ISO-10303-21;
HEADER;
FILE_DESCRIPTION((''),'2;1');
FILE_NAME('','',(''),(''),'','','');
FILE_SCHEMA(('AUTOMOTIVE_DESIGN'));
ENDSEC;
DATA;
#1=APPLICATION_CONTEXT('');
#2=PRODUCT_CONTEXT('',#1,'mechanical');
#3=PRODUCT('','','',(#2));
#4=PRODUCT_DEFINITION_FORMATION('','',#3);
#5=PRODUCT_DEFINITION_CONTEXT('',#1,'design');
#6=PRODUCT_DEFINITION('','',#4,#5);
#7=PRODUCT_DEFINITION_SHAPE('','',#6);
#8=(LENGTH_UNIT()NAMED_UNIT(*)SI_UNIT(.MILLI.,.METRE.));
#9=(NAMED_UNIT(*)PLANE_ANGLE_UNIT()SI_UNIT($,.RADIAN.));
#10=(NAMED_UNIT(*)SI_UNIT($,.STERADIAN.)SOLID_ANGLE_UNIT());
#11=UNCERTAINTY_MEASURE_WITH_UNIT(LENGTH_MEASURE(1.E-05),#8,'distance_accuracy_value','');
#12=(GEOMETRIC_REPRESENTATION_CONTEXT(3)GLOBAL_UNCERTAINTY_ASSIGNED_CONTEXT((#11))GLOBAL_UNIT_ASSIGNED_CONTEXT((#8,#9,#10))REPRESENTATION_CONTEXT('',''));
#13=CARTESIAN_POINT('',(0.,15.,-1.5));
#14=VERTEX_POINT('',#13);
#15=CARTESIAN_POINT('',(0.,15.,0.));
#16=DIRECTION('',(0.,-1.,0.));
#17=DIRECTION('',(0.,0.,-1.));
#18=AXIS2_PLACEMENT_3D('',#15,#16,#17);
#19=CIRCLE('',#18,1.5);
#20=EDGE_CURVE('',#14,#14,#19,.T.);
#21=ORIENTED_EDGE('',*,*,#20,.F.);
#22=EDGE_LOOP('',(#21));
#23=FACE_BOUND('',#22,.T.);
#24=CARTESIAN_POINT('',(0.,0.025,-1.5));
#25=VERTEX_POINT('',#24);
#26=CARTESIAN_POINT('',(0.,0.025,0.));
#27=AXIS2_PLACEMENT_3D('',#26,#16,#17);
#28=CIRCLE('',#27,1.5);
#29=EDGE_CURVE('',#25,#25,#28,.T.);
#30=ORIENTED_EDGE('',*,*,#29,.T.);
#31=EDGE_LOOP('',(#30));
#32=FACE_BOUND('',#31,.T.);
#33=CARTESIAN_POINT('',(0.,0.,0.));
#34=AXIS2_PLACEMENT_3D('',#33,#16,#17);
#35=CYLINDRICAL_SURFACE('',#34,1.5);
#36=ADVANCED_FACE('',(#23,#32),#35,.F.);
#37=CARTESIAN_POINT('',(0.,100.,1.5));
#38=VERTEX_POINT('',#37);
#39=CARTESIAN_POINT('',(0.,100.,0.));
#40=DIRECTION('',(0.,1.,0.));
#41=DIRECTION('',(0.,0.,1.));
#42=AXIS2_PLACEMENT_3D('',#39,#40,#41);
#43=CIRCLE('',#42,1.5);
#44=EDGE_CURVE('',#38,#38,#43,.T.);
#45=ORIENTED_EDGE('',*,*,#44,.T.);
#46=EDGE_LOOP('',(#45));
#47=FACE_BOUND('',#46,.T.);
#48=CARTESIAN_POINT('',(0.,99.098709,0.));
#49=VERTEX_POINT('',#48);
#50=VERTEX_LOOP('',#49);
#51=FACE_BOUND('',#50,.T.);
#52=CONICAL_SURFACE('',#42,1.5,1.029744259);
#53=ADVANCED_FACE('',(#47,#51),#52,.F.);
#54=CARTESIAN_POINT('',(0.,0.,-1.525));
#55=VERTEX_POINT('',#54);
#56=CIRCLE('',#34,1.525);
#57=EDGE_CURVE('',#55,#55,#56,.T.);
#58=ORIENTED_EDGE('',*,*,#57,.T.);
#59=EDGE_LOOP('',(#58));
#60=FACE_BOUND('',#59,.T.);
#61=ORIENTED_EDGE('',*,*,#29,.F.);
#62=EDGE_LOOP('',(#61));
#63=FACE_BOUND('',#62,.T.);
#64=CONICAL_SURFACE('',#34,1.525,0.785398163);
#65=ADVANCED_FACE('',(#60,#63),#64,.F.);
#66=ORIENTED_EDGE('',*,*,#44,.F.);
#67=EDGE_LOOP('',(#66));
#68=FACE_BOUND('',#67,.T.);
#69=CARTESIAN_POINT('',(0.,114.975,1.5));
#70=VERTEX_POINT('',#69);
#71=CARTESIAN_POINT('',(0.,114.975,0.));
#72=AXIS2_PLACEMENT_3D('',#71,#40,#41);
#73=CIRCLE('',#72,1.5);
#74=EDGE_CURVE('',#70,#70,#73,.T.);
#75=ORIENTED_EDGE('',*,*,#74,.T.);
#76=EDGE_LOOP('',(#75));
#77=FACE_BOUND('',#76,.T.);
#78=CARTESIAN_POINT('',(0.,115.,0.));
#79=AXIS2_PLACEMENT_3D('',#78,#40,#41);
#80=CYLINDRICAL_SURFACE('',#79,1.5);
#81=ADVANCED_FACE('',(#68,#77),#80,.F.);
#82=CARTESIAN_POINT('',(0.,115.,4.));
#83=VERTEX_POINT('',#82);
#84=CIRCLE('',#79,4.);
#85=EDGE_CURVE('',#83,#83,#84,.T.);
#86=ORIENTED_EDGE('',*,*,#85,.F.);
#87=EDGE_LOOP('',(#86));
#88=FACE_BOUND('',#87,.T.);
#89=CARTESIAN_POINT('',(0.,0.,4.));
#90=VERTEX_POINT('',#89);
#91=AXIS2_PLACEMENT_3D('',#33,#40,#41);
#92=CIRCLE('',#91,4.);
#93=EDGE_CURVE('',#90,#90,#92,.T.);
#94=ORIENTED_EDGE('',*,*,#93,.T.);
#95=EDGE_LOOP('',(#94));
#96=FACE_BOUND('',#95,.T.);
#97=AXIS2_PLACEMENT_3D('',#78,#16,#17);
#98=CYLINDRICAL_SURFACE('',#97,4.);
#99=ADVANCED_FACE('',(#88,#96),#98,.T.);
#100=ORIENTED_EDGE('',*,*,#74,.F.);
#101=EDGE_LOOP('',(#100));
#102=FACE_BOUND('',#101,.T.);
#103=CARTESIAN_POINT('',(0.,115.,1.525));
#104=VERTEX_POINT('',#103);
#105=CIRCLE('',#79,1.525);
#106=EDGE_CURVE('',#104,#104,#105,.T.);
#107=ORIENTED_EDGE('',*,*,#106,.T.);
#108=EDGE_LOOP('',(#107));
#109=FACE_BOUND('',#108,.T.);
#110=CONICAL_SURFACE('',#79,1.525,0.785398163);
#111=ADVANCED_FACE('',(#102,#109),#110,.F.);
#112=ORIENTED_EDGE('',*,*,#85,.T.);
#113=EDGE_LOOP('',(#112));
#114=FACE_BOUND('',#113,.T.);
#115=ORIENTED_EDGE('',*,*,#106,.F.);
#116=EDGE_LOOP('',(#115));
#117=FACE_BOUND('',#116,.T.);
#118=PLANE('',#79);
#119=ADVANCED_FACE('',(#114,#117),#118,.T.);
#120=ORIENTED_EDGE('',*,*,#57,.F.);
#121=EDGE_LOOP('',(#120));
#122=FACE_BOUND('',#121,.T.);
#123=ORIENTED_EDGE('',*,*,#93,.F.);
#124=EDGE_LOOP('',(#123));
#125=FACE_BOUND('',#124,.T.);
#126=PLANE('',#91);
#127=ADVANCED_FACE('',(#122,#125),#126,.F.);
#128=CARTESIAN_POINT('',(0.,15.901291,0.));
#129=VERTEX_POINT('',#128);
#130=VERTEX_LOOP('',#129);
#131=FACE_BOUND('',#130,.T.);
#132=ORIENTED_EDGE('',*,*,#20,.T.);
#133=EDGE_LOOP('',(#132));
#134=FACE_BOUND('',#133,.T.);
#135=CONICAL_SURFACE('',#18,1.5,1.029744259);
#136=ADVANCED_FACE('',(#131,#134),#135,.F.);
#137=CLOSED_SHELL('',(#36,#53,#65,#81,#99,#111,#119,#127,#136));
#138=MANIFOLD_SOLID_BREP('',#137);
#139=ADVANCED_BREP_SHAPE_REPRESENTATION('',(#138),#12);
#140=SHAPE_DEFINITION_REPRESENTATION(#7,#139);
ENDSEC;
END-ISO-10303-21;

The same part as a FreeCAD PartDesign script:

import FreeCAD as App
import Part
import Sketcher
Q = App.Units.Quantity


def add_polygon(sketch, points):
    """Adds a closed chain of lines whose ends are joined by coincident constraints."""
    first, n = sketch.GeometryCount, len(points)
    for a, b in zip(points, points[1:] + points[:1]):
        sketch.addGeometry(Part.LineSegment(App.Vector(*a, 0), App.Vector(*b, 0)), False)
    for i in range(n):
        sketch.addConstraint(Sketcher.Constraint("Coincident", first + i, 2, first + (i + 1) % n, 1))

doc = App.newDocument("Part")
body = doc.addObject("PartDesign::Body", "Body")

# Sketch on XZ plane
sketch1 = body.newObject("Sketcher::SketchObject", "Sketch")
sketch1.AttachmentSupport = (doc.getObject("XZ_Plane"), [""])
sketch1.MapMode = "FlatFace"
sketch1.addGeometry(Part.Circle(App.Vector(0, 0, 0), App.Vector(0, 0, 1), 4), False)
sketch1.addConstraint([
    Sketcher.Constraint("Coincident", 0, 3, -1, 1),
    Sketcher.Constraint("Diameter", 0, 8.0),
])
pad1 = body.newObject("PartDesign::Pad", "Pad")
pad1.Profile = sketch1
pad1.Length = 115
pad1.Reversed = True

# Sketch on YZ plane
sketch2 = body.newObject("Sketcher::SketchObject", "Sketch001")
sketch2.AttachmentSupport = (doc.getObject("YZ_Plane"), [""])
sketch2.MapMode = "FlatFace"
add_polygon(sketch2, [(99.099, 0), (115, 0), (115, 1.525), (114.975, 1.5), (100, 1.5)])  # lines 0-4
sketch2.addConstraint([
    Sketcher.Constraint("Horizontal", 0),
    Sketcher.Constraint("Vertical", 1),
    Sketcher.Constraint("Horizontal", 3),
    Sketcher.Constraint("PointOnObject", 0, 2, -1),
    Sketcher.Constraint("Angle", 2, Q("-135 deg")),
    Sketcher.Constraint("Angle", 4, Q("-121 deg")),
    Sketcher.Constraint("DistanceX", -1, 1, 0, 2, 115.0),
    Sketcher.Constraint("DistanceX", -1, 1, 3, 2, 100.0),
    Sketcher.Constraint("DistanceY", -1, 1, 2, 2, 1.5),
    Sketcher.Constraint("DistanceX", 3, 2, 3, 1, 14.975),
])
groove = body.newObject("PartDesign::Groove", "Groove")
groove.Profile = sketch2
groove.ReferenceAxis = (sketch2, ["H_Axis"])
groove.Angle = 360
doc.recompute()

datumplane = body.newObject("PartDesign::Plane", "DatumPlane")
datumplane.AttachmentSupport = (doc.getObject("XZ_Plane"), [""])
datumplane.MapMode = "FlatFace"
datumplane.AttachmentOffset = App.Placement(App.Vector(0, 0, -57.5), App.Rotation())
mirrored = body.newObject("PartDesign::Mirrored", "Mirrored")
mirrored.Originals = [groove]
mirrored.MirrorPlane = (datumplane, [""])
body.Tip = mirrored

doc.recompute()
